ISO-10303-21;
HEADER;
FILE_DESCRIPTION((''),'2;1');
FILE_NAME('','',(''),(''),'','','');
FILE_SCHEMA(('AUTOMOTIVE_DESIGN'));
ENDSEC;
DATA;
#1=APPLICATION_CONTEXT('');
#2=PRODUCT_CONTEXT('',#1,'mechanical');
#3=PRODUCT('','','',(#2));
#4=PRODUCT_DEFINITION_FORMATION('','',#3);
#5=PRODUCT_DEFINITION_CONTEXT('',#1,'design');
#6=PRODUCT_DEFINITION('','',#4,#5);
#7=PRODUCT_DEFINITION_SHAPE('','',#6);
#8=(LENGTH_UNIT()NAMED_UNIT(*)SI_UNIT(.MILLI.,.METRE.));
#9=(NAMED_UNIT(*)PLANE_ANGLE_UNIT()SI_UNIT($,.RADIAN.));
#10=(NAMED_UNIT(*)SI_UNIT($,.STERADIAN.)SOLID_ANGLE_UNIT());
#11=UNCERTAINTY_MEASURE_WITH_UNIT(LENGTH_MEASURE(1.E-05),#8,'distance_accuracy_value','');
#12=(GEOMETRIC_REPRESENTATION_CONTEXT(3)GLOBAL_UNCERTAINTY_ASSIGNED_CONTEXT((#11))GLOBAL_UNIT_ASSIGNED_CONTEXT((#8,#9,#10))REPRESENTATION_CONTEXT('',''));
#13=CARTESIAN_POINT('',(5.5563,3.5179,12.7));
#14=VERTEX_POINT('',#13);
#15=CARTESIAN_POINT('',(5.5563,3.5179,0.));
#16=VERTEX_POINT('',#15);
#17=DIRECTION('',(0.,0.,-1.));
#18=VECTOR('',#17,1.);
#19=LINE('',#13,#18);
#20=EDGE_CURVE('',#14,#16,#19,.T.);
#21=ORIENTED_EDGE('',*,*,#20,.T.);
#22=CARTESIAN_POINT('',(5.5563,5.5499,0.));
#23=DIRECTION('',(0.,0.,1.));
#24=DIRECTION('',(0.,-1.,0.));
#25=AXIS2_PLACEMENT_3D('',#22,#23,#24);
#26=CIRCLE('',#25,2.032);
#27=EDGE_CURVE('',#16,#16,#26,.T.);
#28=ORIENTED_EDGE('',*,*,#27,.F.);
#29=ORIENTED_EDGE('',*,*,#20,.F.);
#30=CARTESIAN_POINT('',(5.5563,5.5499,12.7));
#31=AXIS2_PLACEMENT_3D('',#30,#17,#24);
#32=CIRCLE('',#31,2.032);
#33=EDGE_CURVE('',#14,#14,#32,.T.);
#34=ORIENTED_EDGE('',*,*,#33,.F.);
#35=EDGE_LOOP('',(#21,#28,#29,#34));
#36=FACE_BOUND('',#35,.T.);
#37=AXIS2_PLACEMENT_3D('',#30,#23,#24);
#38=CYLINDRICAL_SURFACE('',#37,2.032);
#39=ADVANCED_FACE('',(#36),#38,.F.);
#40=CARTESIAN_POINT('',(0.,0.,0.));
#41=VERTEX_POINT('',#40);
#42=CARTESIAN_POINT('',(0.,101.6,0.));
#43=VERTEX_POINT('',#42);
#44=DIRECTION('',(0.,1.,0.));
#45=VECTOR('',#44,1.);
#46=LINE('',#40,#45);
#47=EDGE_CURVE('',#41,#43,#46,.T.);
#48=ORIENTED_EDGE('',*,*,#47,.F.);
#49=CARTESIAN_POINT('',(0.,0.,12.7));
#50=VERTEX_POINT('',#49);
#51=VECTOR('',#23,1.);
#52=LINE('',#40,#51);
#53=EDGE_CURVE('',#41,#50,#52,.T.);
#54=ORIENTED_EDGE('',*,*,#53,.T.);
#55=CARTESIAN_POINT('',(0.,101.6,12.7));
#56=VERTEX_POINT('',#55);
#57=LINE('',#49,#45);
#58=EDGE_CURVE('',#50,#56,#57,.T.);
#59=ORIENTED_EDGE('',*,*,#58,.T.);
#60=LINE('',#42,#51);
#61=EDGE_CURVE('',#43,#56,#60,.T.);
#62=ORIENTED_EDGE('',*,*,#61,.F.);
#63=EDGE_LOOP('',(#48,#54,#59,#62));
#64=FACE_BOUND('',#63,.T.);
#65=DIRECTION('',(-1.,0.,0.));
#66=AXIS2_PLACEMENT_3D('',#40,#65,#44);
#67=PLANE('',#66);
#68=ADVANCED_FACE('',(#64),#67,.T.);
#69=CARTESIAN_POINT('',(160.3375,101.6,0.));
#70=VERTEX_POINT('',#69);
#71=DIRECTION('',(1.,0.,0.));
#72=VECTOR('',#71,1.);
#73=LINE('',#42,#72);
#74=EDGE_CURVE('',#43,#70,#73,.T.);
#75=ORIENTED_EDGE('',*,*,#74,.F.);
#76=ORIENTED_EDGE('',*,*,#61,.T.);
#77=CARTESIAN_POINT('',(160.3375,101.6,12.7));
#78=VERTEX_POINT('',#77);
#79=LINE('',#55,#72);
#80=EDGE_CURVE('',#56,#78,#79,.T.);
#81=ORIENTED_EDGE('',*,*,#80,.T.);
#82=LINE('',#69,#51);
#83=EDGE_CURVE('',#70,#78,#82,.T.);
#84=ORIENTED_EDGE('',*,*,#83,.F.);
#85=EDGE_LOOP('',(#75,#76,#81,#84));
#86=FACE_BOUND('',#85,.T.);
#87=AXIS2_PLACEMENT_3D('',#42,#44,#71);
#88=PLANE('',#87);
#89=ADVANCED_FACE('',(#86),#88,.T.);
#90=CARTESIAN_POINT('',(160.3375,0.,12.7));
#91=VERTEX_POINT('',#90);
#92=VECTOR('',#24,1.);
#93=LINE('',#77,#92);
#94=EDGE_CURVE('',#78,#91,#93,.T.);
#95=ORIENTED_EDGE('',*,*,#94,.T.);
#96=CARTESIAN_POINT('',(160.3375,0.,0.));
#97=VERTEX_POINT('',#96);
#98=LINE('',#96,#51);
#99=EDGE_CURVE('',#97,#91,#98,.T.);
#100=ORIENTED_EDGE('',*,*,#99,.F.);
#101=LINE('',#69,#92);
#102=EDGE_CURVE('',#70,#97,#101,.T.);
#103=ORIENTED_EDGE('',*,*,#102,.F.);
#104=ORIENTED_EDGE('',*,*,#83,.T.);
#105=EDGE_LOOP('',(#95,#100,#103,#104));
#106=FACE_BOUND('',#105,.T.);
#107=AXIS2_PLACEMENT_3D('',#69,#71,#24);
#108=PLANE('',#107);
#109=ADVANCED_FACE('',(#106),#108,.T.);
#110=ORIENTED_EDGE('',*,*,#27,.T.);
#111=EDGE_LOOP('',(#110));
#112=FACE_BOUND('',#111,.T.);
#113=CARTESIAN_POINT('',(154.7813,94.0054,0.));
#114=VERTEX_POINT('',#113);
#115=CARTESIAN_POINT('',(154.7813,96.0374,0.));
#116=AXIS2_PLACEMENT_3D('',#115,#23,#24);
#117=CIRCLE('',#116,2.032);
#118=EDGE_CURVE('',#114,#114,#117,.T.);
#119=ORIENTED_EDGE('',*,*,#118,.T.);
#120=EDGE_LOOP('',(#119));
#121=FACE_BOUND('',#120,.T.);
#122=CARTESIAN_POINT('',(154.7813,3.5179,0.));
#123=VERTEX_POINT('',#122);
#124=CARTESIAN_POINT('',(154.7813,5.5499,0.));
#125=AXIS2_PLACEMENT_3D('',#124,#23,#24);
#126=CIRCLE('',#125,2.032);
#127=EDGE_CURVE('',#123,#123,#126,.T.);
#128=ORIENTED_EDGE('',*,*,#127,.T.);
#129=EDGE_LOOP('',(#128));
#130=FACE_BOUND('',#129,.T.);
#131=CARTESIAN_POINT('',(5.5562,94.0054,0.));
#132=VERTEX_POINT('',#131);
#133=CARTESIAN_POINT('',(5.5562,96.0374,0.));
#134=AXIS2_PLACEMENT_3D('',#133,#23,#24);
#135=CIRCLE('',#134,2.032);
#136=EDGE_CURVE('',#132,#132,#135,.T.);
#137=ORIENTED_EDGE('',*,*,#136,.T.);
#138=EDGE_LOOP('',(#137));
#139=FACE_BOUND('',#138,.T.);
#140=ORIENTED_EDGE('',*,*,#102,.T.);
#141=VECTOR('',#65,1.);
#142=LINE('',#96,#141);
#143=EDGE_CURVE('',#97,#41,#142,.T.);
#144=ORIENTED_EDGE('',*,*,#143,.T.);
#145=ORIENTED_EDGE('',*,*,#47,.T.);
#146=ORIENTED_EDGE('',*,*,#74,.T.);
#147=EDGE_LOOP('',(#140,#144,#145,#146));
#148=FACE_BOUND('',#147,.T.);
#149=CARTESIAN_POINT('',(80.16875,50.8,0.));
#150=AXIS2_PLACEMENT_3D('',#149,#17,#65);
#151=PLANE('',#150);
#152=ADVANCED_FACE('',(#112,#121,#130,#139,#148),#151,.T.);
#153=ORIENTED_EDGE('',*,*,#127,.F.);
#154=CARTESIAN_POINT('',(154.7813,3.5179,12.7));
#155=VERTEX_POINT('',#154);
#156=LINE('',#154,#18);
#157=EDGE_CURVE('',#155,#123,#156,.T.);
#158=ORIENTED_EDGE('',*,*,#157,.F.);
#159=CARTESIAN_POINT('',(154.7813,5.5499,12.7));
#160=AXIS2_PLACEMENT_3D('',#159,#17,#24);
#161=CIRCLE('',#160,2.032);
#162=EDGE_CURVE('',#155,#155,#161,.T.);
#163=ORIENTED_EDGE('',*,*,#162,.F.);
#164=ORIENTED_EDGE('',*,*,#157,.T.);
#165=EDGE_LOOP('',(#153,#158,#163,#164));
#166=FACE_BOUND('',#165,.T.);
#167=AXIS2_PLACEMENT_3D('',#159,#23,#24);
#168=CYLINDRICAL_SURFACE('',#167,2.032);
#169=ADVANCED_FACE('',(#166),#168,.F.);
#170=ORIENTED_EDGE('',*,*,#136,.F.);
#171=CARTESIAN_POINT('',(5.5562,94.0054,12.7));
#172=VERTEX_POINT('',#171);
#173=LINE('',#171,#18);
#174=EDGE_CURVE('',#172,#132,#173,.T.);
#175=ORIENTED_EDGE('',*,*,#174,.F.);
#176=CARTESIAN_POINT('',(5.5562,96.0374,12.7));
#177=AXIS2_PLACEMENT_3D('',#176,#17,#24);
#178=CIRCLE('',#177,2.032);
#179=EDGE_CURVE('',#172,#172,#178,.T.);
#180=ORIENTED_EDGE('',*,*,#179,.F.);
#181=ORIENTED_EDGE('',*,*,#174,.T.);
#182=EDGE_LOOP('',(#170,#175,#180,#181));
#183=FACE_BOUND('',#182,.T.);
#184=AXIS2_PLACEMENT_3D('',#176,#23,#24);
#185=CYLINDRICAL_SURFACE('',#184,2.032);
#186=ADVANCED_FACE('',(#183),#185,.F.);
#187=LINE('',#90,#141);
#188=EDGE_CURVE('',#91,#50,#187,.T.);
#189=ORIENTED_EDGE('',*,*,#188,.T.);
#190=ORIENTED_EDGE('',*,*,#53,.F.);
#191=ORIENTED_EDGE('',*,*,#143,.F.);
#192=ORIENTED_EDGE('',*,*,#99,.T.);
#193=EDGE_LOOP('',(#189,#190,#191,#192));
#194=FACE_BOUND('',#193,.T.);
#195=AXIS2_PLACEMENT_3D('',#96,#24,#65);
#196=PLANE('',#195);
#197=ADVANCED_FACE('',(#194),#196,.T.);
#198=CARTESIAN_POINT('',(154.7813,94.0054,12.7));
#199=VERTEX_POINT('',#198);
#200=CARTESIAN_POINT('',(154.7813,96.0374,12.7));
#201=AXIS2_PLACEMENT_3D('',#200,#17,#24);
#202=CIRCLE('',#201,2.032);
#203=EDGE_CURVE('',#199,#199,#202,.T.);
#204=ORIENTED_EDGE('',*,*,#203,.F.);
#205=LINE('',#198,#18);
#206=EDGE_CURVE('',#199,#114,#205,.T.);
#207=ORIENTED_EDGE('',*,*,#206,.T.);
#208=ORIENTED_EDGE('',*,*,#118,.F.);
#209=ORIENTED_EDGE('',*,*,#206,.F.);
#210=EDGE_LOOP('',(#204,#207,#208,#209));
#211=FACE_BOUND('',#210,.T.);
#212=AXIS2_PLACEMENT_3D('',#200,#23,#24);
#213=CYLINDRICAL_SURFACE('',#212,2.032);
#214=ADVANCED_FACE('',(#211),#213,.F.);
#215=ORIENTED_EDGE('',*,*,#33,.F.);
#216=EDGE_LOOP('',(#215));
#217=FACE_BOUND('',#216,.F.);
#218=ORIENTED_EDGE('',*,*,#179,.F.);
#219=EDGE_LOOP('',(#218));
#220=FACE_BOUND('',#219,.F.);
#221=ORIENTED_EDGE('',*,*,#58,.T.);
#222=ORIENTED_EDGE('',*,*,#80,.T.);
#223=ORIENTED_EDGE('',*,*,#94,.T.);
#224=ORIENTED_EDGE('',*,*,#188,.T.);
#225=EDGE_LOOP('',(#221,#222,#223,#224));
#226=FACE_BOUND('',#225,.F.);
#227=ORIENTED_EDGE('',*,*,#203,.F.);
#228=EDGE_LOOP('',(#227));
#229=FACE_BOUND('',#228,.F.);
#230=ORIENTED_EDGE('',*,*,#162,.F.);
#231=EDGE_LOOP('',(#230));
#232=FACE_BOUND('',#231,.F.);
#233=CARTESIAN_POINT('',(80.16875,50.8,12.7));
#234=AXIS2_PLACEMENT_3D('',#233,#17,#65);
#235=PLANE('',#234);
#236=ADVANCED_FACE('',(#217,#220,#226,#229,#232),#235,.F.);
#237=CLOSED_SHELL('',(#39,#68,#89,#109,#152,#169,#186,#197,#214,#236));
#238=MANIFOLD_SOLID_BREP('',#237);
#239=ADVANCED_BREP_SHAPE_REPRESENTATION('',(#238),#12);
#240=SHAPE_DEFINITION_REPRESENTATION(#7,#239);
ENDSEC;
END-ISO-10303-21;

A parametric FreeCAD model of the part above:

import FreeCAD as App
import Part
import Sketcher
Q = App.Units.Quantity


def add_polygon(sketch, points):
    """Adds a closed chain of lines whose ends are joined by coincident constraints."""
    first, n = sketch.GeometryCount, len(points)
    for a, b in zip(points, points[1:] + points[:1]):
        sketch.addGeometry(Part.LineSegment(App.Vector(*a, 0), App.Vector(*b, 0)), False)
    for i in range(n):
        sketch.addConstraint(Sketcher.Constraint("Coincident", first + i, 2, first + (i + 1) % n, 1))

doc = App.newDocument("Part")
body = doc.addObject("PartDesign::Body", "Body")

# Sketch on XY plane
sketch1 = body.newObject("Sketcher::SketchObject", "Sketch")
sketch1.AttachmentSupport = (doc.getObject("XY_Plane"), [""])
sketch1.MapMode = "FlatFace"
add_polygon(sketch1, [(0, 102), (0, 0), (160, 0), (160, 102)])  # lines 0-3
sketch1.addConstraint([
    Sketcher.Constraint("Vertical", 0),
    Sketcher.Constraint("Horizontal", 1),
    Sketcher.Constraint("Vertical", 2),
    Sketcher.Constraint("Horizontal", 3),
    Sketcher.Constraint("Coincident", 0, 2, -1, 1),
    Sketcher.Constraint("DistanceX", 1, 1, 1, 2, Q("6.3125 in")),
    Sketcher.Constraint("DistanceY", 0, 2, 0, 1, Q("4 in")),
])
pad1 = body.newObject("PartDesign::Pad", "Pad")
pad1.Profile = sketch1
pad1.Length = Q("0.5 in")

# Sketch on XY plane
sketch2 = body.newObject("Sketcher::SketchObject", "Sketch001")
sketch2.AttachmentSupport = (doc.getObject("XY_Plane"), [""])
sketch2.MapMode = "FlatFace"
sketch2.AttachmentOffset = App.Placement(App.Vector(0, 0, 0.5 * 25.4), App.Rotation())
sketch2.addGeometry(Part.Circle(App.Vector(5.6, 5.5, 0), App.Vector(0, 0, 1), 2), False)
sketch2.addConstraint([
    Sketcher.Constraint("Diameter", 0, Q("0.16 in")),
    Sketcher.Constraint("DistanceX", -1, 1, 0, 3, Q("0.218752 in")),
    Sketcher.Constraint("DistanceY", -1, 1, 0, 3, Q("0.2185 in")),
])
doc.recompute()
hole = body.newObject("PartDesign::Hole", "Hole")
hole.Profile = sketch2
hole.ThreadType = "None"
hole.Diameter = Q("0.16 in")
hole.DepthType = "ThroughAll"

# Sketch on XY plane
sketch3 = body.newObject("Sketcher::SketchObject", "Sketch002")
sketch3.AttachmentSupport = (doc.getObject("XY_Plane"), [""])
sketch3.MapMode = "FlatFace"
sketch3.AttachmentOffset = App.Placement(App.Vector(0, 0, 0.5 * 25.4), App.Rotation())
sketch3.addGeometry(Part.Circle(App.Vector(154.8, 5.5, 0), App.Vector(0, 0, 1), 2), False)
sketch3.addConstraint([
    Sketcher.Constraint("Diameter", 0, Q("0.16 in")),
    Sketcher.Constraint("DistanceX", -1, 1, 0, 3, Q("6.093752 in")),
    Sketcher.Constraint("DistanceY", -1, 1, 0, 3, Q("0.2185 in")),
])
doc.recompute()
hole2 = body.newObject("PartDesign::Hole", "Hole001")
hole2.Profile = sketch3
hole2.ThreadType = "None"
hole2.Diameter = Q("0.16 in")
hole2.DepthType = "ThroughAll"

# Sketch on XY plane
sketch4 = body.newObject("Sketcher::SketchObject", "Sketch003")
sketch4.AttachmentSupport = (doc.getObject("XY_Plane"), [""])
sketch4.MapMode = "FlatFace"
sketch4.AttachmentOffset = App.Placement(App.Vector(0, 0, 0.5 * 25.4), App.Rotation())
sketch4.addGeometry(Part.Circle(App.Vector(154.8, 96, 0), App.Vector(0, 0, 1), 2), False)
sketch4.addConstraint([
    Sketcher.Constraint("Diameter", 0, Q("0.16 in")),
    Sketcher.Constraint("DistanceX", -1, 1, 0, 3, Q("6.093752 in")),
    Sketcher.Constraint("DistanceY", -1, 1, 0, 3, Q("3.781 in")),
])
doc.recompute()
hole3 = body.newObject("PartDesign::Hole", "Hole002")
hole3.Profile = sketch4
hole3.ThreadType = "None"
hole3.Diameter = Q("0.16 in")
hole3.DepthType = "ThroughAll"

# Sketch on XY plane
sketch5 = body.newObject("Sketcher::SketchObject", "Sketch004")
sketch5.AttachmentSupport = (doc.getObject("XY_Plane"), [""])
sketch5.MapMode = "FlatFace"
sketch5.AttachmentOffset = App.Placement(App.Vector(0, 0, 0.5 * 25.4), App.Rotation())
sketch5.addGeometry(Part.Circle(App.Vector(5.6, 96, 0), App.Vector(0, 0, 1), 2), False)
sketch5.addConstraint([
    Sketcher.Constraint("Diameter", 0, Q("0.16 in")),
    Sketcher.Constraint("DistanceX", -1, 1, 0, 3, Q("0.218748 in")),
    Sketcher.Constraint("DistanceY", -1, 1, 0, 3, Q("3.781 in")),
])
doc.recompute()
hole4 = body.newObject("PartDesign::Hole", "Hole003")
hole4.Profile = sketch5
hole4.ThreadType = "None"
hole4.Diameter = Q("0.16 in")
hole4.DepthType = "ThroughAll"

doc.recompute()
